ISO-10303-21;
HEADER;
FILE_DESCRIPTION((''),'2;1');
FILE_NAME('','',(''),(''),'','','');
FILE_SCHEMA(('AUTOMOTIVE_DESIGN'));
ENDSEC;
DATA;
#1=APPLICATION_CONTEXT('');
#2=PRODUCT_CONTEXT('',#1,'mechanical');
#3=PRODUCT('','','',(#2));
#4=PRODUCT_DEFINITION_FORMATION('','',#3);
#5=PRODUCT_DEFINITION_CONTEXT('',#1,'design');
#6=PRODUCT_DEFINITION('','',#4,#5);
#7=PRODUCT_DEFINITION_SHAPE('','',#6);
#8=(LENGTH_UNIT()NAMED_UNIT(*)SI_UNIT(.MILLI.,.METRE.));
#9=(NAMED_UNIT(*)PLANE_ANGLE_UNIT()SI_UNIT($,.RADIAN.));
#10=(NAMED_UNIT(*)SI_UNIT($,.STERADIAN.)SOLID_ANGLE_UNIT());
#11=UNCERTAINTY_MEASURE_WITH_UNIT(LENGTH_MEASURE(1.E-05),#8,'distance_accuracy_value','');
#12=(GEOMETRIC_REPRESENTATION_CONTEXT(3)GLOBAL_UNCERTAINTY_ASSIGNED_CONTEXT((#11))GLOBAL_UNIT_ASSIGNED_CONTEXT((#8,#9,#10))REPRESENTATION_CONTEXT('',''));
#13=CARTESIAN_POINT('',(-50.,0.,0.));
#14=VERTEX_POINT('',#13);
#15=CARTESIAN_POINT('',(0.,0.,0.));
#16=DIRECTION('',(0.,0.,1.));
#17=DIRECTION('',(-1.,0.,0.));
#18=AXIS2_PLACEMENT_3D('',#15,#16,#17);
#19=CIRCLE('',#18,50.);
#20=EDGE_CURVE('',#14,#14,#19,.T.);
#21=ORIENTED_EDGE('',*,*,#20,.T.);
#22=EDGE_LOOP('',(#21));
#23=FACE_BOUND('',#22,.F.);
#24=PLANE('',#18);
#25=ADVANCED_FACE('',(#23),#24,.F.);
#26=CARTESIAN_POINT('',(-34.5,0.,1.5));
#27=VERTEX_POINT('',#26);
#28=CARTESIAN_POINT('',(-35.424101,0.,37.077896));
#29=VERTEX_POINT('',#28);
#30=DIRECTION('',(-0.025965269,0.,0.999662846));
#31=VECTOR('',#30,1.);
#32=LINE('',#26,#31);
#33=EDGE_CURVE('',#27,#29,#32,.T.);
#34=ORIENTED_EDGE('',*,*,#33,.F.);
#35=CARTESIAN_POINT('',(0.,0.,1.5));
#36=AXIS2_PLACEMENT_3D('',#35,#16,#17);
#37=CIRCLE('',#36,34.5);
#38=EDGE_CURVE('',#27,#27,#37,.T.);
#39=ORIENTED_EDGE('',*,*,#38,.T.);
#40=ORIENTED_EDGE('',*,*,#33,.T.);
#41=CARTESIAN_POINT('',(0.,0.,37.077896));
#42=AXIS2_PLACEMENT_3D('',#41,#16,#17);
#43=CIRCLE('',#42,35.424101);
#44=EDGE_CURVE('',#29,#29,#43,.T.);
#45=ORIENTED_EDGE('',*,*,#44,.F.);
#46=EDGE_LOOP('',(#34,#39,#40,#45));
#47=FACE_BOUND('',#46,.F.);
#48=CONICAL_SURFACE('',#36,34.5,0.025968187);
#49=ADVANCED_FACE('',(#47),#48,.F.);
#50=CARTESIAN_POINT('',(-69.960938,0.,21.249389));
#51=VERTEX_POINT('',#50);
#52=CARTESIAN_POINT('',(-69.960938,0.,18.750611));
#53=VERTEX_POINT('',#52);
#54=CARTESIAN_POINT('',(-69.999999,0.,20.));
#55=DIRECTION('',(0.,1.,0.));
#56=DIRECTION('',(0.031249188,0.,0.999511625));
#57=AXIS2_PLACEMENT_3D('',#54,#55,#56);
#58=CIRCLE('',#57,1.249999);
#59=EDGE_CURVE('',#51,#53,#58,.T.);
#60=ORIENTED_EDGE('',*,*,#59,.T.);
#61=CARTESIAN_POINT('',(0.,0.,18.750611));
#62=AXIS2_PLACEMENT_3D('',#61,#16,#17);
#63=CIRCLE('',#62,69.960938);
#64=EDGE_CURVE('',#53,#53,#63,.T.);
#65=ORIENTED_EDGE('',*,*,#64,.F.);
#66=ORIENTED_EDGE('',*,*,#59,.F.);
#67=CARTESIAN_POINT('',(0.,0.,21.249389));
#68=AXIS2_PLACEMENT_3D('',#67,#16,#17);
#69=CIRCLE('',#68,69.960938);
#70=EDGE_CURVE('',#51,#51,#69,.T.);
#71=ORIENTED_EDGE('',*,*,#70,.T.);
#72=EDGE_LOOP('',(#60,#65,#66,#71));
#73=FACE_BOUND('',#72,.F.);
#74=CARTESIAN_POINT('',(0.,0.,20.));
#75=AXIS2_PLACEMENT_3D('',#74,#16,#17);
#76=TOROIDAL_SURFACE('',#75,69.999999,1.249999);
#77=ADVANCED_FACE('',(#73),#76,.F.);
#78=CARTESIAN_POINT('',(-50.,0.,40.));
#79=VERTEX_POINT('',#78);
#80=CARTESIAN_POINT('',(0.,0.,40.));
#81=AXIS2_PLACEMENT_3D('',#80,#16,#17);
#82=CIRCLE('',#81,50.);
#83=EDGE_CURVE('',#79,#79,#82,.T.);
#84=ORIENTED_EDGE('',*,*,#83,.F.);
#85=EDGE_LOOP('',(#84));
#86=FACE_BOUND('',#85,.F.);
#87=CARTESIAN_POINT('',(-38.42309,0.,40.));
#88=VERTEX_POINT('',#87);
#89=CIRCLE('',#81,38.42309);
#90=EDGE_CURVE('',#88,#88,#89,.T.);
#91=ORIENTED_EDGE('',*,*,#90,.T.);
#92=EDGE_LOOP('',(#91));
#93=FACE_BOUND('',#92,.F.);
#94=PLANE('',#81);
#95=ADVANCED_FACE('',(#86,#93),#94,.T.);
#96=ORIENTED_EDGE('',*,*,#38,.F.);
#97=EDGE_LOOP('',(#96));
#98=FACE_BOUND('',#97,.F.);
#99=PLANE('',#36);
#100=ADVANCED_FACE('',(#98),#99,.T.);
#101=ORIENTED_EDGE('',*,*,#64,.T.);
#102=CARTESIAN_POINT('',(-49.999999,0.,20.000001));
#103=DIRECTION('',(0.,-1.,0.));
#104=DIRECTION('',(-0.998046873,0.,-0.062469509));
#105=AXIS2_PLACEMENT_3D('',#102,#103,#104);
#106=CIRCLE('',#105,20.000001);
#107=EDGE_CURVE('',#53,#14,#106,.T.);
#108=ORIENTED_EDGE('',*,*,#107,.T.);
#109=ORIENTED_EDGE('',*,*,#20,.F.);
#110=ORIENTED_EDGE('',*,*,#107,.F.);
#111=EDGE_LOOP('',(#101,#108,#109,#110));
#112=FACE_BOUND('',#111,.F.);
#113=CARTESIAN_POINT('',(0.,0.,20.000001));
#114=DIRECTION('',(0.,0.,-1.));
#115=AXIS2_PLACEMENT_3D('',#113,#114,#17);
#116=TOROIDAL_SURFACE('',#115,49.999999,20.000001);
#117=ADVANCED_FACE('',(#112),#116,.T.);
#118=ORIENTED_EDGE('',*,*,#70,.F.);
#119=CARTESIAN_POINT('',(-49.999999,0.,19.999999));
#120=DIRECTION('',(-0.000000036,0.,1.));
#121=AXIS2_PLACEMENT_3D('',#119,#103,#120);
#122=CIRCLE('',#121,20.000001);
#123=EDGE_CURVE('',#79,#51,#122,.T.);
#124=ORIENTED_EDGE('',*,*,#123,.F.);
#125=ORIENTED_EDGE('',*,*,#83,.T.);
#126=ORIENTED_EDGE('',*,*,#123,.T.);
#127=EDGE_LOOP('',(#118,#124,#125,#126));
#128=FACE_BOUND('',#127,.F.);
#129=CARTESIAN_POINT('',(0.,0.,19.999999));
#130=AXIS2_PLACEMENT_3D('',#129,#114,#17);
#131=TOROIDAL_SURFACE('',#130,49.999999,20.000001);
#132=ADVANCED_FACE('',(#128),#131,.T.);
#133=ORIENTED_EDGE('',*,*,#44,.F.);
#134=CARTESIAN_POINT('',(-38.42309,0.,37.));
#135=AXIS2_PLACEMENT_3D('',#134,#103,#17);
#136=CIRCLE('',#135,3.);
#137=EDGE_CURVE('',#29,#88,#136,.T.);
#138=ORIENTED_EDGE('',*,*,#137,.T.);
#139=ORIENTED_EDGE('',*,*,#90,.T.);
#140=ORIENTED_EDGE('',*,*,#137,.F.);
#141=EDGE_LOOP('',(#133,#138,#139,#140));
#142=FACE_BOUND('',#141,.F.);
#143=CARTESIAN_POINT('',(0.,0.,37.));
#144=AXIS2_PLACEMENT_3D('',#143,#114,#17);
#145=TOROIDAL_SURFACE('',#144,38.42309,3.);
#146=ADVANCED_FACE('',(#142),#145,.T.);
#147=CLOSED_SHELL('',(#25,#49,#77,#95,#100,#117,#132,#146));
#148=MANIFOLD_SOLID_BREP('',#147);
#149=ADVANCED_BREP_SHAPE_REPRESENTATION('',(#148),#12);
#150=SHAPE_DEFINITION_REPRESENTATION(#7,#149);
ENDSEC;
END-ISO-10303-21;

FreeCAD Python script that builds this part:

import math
import FreeCAD as App
import Part
import Sketcher
from FreeCAD import Vector


def edges_at(feature, points):
    """Names of the edges that pass closest to the given points."""
    edges = feature.Shape.Edges
    near = lambda p: min(range(len(edges)), key=lambda i: edges[i].distToShape(Part.Vertex(*p))[0])
    return sorted({f"Edge{near(p) + 1}" for p in points})

doc = App.newDocument("Part")
body = doc.addObject("PartDesign::Body", "Body")

sketch1 = doc.addObject("Sketcher::SketchObject", "Sketch")
body.addObject(sketch1)
sketch1.AttachmentSupport = (doc.XZ_Plane, [""])
sketch1.MapMode = "FlatFace"
sketch1.addGeometry([
    Part.LineSegment(Vector(-50, 0, 0), Vector(0, 0, 0)),
    Part.LineSegment(Vector(0, 0, 0), Vector(0, 1.5, 0)),
    Part.LineSegment(Vector(0, 1.5, 0), Vector(-34.5, 1.5, 0)),
    Part.LineSegment(Vector(-34.5, 1.5, 0), Vector(-35.5, 40, 0)),
    Part.LineSegment(Vector(-35.5, 40, 0), Vector(-50, 40, 0)),
    Part.ArcOfCircle(Part.Circle(Vector(-50, 20, 0), Vector(0, 0, 1), 20), math.radians(90), math.radians(176)),
    Part.ArcOfCircle(Part.Circle(Vector(-70, 20, 0), Vector(0, 0, 1), 1.2), math.radians(-88), math.radians(88)),
    Part.ArcOfCircle(Part.Circle(Vector(-50, 20, 0), Vector(0, 0, 1), 20), math.radians(-176), math.radians(-90)),
], False)
sketch1.addConstraint([
    Sketcher.Constraint("Coincident", 0, 2, 1, 1),
    Sketcher.Constraint("Coincident", 1, 2, 2, 1),
    Sketcher.Constraint("Coincident", 2, 2, 3, 1),
    Sketcher.Constraint("Coincident", 3, 2, 4, 1),
    Sketcher.Constraint("Tangent", 4, 2, 5, 1),
    Sketcher.Constraint("Coincident", 5, 2, 6, 2),
    Sketcher.Constraint("Coincident", 6, 1, 7, 1),
    Sketcher.Constraint("Tangent", 7, 2, 0, 1),
    Sketcher.Constraint("Horizontal", 0),
    Sketcher.Constraint("Vertical", 1),
    Sketcher.Constraint("Horizontal", 2),
    Sketcher.Constraint("Horizontal", 4),
    Sketcher.Constraint("Coincident", 0, 2, -1, 1),
    Sketcher.Constraint("Coincident", 7, 3, 5, 3),
    Sketcher.Constraint("Equal", 5, 7),
    Sketcher.Constraint("Horizontal", 5, 3, 6, 3),
    Sketcher.Constraint("Radius", 5, 20.000001),
    Sketcher.Constraint("DistanceX", 0, 1, 0, 2, 50.0),
    Sketcher.Constraint("Radius", 6, 1.249999),
    Sketcher.Constraint("DistanceX", 2, 2, 2, 1, 34.5),
    Sketcher.Constraint("DistanceX", 4, 2, 4, 1, 14.5),
    Sketcher.Constraint("DistanceY", 1, 1, 1, 2, 1.5),
    Sketcher.Constraint("DistanceX", 6, 3, -1, 1, 69.999999),
])
revolution = doc.addObject("PartDesign::Revolution", "Revolution")
body.addObject(revolution)
revolution.Profile = sketch1
revolution.ReferenceAxis = (sketch1, ["V_Axis"])
revolution.Angle = 360
doc.recompute()

fillet = doc.addObject("PartDesign::Fillet", "Fillet")
body.addObject(fillet)
fillet.Base = (revolution, edges_at(revolution, [(35.5, 0, 40)]))
fillet.Radius = 3

doc.recompute()
